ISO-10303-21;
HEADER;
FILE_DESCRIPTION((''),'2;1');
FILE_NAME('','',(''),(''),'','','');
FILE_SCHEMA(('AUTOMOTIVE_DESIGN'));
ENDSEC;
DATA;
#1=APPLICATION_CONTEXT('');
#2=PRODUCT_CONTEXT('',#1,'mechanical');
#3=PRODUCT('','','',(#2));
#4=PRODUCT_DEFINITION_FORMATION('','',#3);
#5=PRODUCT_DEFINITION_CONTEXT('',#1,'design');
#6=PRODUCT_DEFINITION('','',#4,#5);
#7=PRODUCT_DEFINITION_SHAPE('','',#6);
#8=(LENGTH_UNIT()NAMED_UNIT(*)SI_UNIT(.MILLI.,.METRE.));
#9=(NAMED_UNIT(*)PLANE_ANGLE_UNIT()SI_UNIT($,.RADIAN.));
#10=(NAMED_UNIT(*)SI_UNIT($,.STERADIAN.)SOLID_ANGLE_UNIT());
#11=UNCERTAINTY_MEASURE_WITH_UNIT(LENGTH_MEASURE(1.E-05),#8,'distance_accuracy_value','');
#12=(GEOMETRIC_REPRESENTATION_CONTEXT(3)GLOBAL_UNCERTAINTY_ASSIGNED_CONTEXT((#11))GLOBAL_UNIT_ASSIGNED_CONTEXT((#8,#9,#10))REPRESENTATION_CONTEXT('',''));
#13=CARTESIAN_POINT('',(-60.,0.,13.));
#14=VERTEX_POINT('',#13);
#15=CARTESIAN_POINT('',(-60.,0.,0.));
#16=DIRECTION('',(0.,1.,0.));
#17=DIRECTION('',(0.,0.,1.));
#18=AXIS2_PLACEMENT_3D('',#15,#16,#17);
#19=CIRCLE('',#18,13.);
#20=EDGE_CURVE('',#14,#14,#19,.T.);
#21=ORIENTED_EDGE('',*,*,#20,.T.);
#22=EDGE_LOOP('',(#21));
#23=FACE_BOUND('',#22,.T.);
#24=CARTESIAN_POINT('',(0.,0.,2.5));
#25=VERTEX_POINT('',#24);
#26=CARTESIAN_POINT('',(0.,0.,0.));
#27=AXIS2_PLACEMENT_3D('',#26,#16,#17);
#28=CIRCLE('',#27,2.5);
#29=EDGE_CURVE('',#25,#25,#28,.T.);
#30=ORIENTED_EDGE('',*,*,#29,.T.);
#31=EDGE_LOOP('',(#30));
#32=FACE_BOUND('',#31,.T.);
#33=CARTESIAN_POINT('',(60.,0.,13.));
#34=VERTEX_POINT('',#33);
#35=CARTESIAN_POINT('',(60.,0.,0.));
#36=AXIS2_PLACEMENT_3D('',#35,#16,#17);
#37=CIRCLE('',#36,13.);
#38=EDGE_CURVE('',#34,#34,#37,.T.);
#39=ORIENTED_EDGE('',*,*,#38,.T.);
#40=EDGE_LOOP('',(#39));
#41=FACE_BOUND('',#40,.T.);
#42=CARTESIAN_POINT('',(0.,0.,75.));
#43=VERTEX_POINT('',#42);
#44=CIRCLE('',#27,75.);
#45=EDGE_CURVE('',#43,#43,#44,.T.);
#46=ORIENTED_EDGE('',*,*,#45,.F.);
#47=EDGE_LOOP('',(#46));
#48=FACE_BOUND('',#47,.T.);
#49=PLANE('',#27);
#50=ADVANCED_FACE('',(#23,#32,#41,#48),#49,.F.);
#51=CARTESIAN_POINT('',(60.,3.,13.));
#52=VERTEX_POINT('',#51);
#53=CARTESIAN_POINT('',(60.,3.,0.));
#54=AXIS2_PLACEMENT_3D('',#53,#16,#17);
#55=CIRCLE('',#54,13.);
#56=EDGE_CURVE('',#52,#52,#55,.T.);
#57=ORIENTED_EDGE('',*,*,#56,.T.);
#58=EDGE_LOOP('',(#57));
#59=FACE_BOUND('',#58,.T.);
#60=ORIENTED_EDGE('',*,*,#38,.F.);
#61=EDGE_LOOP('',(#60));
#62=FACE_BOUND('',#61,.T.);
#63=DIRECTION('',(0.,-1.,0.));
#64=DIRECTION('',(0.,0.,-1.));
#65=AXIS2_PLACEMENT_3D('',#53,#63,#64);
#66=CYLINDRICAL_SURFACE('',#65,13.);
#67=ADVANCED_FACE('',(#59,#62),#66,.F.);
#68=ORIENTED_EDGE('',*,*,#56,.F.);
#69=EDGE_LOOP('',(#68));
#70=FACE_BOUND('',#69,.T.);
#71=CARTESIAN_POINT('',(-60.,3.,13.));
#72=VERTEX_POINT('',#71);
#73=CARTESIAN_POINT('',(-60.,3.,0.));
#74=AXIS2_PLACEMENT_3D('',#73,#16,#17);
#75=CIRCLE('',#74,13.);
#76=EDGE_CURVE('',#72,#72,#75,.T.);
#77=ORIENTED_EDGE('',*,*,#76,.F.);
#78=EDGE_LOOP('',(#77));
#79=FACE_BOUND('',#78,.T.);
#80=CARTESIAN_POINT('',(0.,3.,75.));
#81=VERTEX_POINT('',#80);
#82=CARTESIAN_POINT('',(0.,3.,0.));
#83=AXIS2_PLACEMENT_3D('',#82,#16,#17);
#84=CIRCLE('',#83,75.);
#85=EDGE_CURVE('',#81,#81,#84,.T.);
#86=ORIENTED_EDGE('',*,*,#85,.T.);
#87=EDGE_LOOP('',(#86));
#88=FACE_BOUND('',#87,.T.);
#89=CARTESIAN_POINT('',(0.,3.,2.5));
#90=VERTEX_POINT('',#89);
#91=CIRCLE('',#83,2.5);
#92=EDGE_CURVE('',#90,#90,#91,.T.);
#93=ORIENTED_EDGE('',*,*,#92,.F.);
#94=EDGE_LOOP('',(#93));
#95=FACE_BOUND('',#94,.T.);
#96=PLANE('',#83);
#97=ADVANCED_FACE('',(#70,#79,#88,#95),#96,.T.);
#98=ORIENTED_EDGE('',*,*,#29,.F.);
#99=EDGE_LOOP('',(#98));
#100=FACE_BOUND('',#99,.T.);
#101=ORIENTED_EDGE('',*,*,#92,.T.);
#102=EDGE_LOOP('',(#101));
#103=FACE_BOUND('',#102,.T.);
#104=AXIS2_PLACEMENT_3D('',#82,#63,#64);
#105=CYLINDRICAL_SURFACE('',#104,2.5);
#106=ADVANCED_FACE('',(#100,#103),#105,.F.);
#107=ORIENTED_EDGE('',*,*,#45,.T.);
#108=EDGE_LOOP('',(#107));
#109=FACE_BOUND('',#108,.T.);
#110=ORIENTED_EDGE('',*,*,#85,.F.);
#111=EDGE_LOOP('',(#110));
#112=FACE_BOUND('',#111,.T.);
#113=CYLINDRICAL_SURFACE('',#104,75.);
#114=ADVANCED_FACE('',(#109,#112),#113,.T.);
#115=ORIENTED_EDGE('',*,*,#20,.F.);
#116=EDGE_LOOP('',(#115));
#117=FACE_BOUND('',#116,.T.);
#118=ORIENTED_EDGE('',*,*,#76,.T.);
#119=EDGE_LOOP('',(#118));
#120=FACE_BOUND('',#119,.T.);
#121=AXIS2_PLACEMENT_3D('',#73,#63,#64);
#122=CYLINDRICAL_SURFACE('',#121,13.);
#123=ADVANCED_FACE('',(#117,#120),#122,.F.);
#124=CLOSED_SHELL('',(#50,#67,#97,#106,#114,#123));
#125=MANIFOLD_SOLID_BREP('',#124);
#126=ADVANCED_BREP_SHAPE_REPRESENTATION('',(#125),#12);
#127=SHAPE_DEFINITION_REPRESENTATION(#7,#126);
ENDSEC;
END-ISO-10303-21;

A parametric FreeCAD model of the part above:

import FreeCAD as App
import Part
import Sketcher
Q = App.Units.Quantity

doc = App.newDocument("Part")
body = doc.addObject("PartDesign::Body", "Body")

sketch1 = body.newObject("Sketcher::SketchObject", "Sketch")
sketch1.AttachmentSupport = (doc.getObject("XZ_Plane"), [""])
sketch1.MapMode = "FlatFace"
sketch1.addGeometry([
    Part.Circle(App.Vector(0, 0, 0), App.Vector(0, 0, 1), 75),
    Part.Circle(App.Vector(-60, 0, 0), App.Vector(0, 0, 1), 13),
    Part.Circle(App.Vector(60, 0, 0), App.Vector(0, 0, 1), 13),
    Part.Circle(App.Vector(0, 0, 0), App.Vector(0, 0, 1), 2.5),
], False)
sketch1.addConstraint([
    Sketcher.Constraint("Coincident", 0, 3, -1, 1),
    Sketcher.Constraint("Coincident", 3, 3, -1, 1),
    Sketcher.Constraint("Equal", 1, 2),
    Sketcher.Constraint("Symmetric", 1, 3, 2, 3, -1, 1),
    Sketcher.Constraint("PointOnObject", 1, 3, -1),
    Sketcher.Constraint("Diameter", 0, Q("150 mm")),
    Sketcher.Constraint("Diameter", 1, Q("26 mm")),
    Sketcher.Constraint("Diameter", 3, Q("5 mm")),
    Sketcher.Constraint("DistanceX", 1, 3, -1, 1, Q("60 mm")),
])
pad1 = body.newObject("PartDesign::Pad", "Pad")
pad1.Profile = sketch1
pad1.Length = 3
pad1.Reversed = True

sketch2 = body.newObject("Sketcher::SketchObject", "Sketch001")
sketch2.AttachmentSupport = (doc.getObject("XZ_Plane"), [""])
sketch2.MapMode = "FlatFace"
sketch2.addGeometry([
    Part.Circle(App.Vector(0, 0, 0), App.Vector(0, 0, 1), 75),
    Part.Circle(App.Vector(-60, 0, 0), App.Vector(0, 0, 1), 13),
    Part.Circle(App.Vector(0, 0, 0), App.Vector(0, 0, 1), 2.5),
    Part.Circle(App.Vector(60, 0, 0), App.Vector(0, 0, 1), 13),
], False)
sketch2.addConstraint([
    Sketcher.Constraint("Coincident", 0, 3, -1, 1),
    Sketcher.Constraint("Coincident", 2, 3, -1, 1),
    Sketcher.Constraint("Equal", 1, 3),
    Sketcher.Constraint("Symmetric", 1, 3, 3, 3, -1, 1),
    Sketcher.Constraint("PointOnObject", 1, 3, -1),
    Sketcher.Constraint("Diameter", 0, Q("150 mm")),
    Sketcher.Constraint("Diameter", 1, Q("26 mm")),
    Sketcher.Constraint("Diameter", 2, Q("5 mm")),
    Sketcher.Constraint("DistanceX", 1, 3, -1, 1, Q("60 mm")),
])
pad2 = body.newObject("PartDesign::Pad", "Pad001")
pad2.Profile = sketch2
pad2.Length = 3
pad2.Reversed = True

doc.recompute()
